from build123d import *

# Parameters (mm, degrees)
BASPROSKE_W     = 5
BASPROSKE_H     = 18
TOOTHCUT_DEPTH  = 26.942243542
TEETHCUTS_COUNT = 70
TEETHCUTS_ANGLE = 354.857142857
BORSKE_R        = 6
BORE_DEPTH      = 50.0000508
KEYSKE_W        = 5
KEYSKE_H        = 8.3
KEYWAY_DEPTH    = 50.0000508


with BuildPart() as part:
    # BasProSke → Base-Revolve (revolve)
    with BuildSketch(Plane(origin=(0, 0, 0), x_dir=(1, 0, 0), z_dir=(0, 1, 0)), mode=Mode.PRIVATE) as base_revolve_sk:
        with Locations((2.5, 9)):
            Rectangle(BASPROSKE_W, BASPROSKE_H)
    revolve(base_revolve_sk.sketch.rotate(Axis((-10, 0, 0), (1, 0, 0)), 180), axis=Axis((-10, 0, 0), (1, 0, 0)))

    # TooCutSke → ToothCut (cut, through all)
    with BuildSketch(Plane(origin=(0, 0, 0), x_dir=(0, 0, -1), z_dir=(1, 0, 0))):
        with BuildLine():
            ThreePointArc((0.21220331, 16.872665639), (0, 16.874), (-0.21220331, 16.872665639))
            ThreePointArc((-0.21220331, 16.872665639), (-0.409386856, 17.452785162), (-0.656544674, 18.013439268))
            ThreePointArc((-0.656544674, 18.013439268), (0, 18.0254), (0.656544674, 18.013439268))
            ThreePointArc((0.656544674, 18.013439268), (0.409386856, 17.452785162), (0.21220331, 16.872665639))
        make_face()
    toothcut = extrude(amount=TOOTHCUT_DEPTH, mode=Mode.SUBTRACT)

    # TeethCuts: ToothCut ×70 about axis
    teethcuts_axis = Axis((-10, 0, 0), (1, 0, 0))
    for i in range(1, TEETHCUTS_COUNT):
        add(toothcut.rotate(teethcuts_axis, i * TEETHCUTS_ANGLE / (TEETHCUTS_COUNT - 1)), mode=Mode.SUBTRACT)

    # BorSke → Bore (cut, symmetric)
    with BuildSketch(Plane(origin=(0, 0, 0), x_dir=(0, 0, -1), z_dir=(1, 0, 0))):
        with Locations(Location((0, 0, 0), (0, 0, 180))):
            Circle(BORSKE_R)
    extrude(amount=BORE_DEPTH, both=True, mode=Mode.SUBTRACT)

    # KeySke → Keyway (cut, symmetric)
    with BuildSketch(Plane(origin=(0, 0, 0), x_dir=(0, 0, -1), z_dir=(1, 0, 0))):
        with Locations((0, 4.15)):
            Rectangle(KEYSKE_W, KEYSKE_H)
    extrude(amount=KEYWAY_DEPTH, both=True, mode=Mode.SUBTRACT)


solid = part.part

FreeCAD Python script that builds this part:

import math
import FreeCAD as App
import Part
import Sketcher
from FreeCAD import Vector
Q = App.Units.Quantity

doc = App.newDocument("Part")
params = doc.addObject("Spreadsheet::Sheet", "Params")
for row, (alias, value) in enumerate([
    ("sketch1_width", "5 mm"),
    ("sketch1_height", "18 mm"),
    ("revolution_angle", "360 deg"),
    ("sketch2_radius", "7 mm"),
    ("sketch3_diameter", "12 mm"),
    ("pocket2_length", "100.000102 mm"),
    ("sketch4_height", "5 mm"),
    ("sketch4_width", "8.3 mm"),
    ("pocket3_length", "100.000102 mm"),
], start=1):
    params.set(f"A{row}", alias)
    params.set(f"B{row}", "=" + value)
    params.setAlias(f"B{row}", alias)

body = doc.addObject("PartDesign::Body", "Body")

sketch1 = body.newObject("Sketcher::SketchObject", "Sketch")
sketch1.AttachmentSupport = (doc.getObject("XZ_Plane"), [""])
sketch1.MapMode = "FlatFace"
sketch1.addGeometry([
    Part.LineSegment(Vector(0, -18, 0), Vector(0, 0, 0)),
    Part.LineSegment(Vector(0, 0, 0), Vector(5, 0, 0)),
    Part.LineSegment(Vector(5, 0, 0), Vector(5, -18, 0)),
    Part.LineSegment(Vector(5, -18, 0), Vector(0, -18, 0)),
], False)
sketch1.addConstraint([
    Sketcher.Constraint("Coincident", 0, 2, 1, 1),
    Sketcher.Constraint("Coincident", 1, 2, 2, 1),
    Sketcher.Constraint("Coincident", 2, 2, 3, 1),
    Sketcher.Constraint("Coincident", 3, 2, 0, 1),
    Sketcher.Constraint("Vertical", 0),
    Sketcher.Constraint("Horizontal", 1),
    Sketcher.Constraint("Vertical", 2),
    Sketcher.Constraint("Horizontal", 3),
    Sketcher.Constraint("Coincident", 0, 2, -1, 1),
    Sketcher.Constraint("DistanceX", 1, 1, 1, 2, Q("5 mm")),
    Sketcher.Constraint("DistanceY", 0, 1, 0, 2, Q("18 mm")),
])
sketch1.setExpression("Constraints[9]", "Params.sketch1_width")
sketch1.setExpression("Constraints[10]", "Params.sketch1_height")
revolution = body.newObject("PartDesign::Revolution", "Revolution")
revolution.Profile = sketch1
revolution.ReferenceAxis = (sketch1, ["H_Axis"])
revolution.setExpression("Angle", "Params.revolution_angle")

sketch2 = body.newObject("Sketcher::SketchObject", "Sketch001")
sketch2.AttachmentSupport = (doc.getObject("YZ_Plane"), [""])
sketch2.MapMode = "FlatFace"
sketch2.addGeometry([
    Part.ArcOfCircle(Part.Circle(Vector(0, 0, 0), Vector(0, 0, 1), 16.87), math.radians(-0.72), math.radians(0.72)),
    Part.ArcOfCircle(Part.Circle(Vector(14.91, -6.93, 0), Vector(0, 0, 1), 7), math.radians(63.7), math.radians(73.74)),
    Part.ArcOfCircle(Part.Circle(Vector(0, 0, 0), Vector(0, 0, 1), 18.03), math.radians(-2.09), math.radians(2.09)),
    Part.ArcOfCircle(Part.Circle(Vector(14.91, 6.93, 0), Vector(0, 0, 1), 7), math.radians(-73.74), math.radians(-63.7)),
], False)
sketch2.addConstraint([
    Sketcher.Constraint("Coincident", 0, 1, 1, 2),
    Sketcher.Constraint("Coincident", 1, 1, 2, 1),
    Sketcher.Constraint("Coincident", 2, 2, 3, 2),
    Sketcher.Constraint("Coincident", 3, 1, 0, 2),
    Sketcher.Constraint("Coincident", 0, 3, -1, 1),
    Sketcher.Constraint("Coincident", 2, 3, -1, 1),
    Sketcher.Constraint("Equal", 1, 3),
    Sketcher.Constraint("Symmetric", 1, 3, 3, 3, -1),
    Sketcher.Constraint("Radius", 1, Q("7 mm")),
    Sketcher.Constraint("Radius", 2, Q("18.0254 mm")),
    Sketcher.Constraint("Radius", 0, Q("16.874004 mm")),
    Sketcher.Constraint("DistanceX", -1, 1, 1, 3, Q("14.912149 mm")),
    Sketcher.Constraint("DistanceX", -1, 1, 1, 1, Q("18.013439 mm")),
])
sketch2.setExpression("Constraints[8]", "Params.sketch2_radius")
pocket1 = body.newObject("PartDesign::Pocket", "Pocket")
pocket1.Profile = sketch2
pocket1.Type = "ThroughAll"
pocket1.Reversed = True
doc.recompute()

polarpattern = body.newObject("PartDesign::PolarPattern", "PolarPattern")
polarpattern.Originals = [pocket1]
polarpattern.Axis = (doc.getObject("X_Axis"), [""])
polarpattern.Angle = 360
polarpattern.Occurrences = 70
body.Tip = polarpattern

sketch3 = body.newObject("Sketcher::SketchObject", "Sketch002")
sketch3.AttachmentSupport = (doc.getObject("YZ_Plane"), [""])
sketch3.MapMode = "FlatFace"
sketch3.addGeometry(Part.Circle(Vector(0, 0, 0), Vector(0, 0, 1), 6), False)
sketch3.addConstraint([
    Sketcher.Constraint("Coincident", 0, 3, -1, 1),
    Sketcher.Constraint("Diameter", 0, Q("12 mm")),
])
sketch3.setExpression("Constraints[1]", "Params.sketch3_diameter")
pocket2 = body.newObject("PartDesign::Pocket", "Pocket001")
pocket2.Profile = sketch3
pocket2.setExpression("Length", "Params.pocket2_length")
pocket2.Midplane = True

sketch4 = body.newObject("Sketcher::SketchObject", "Sketch003")
sketch4.AttachmentSupport = (doc.getObject("YZ_Plane"), [""])
sketch4.MapMode = "FlatFace"
sketch4.addGeometry([
    Part.LineSegment(Vector(8, 2, 0), Vector(0, 2, 0)),
    Part.LineSegment(Vector(0, 2, 0), Vector(0, -2, 0)),
    Part.LineSegment(Vector(0, -2, 0), Vector(8, -2, 0)),
    Part.LineSegment(Vector(8, -2, 0), Vector(8, 2, 0)),
], False)
sketch4.addConstraint([
    Sketcher.Constraint("Coincident", 0, 2, 1, 1),
    Sketcher.Constraint("Coincident", 1, 2, 2, 1),
    Sketcher.Constraint("Coincident", 2, 2, 3, 1),
    Sketcher.Constraint("Coincident", 3, 2, 0, 1),
    Sketcher.Constraint("Horizontal", 0),
    Sketcher.Constraint("Vertical", 1),
    Sketcher.Constraint("Horizontal", 2),
    Sketcher.Constraint("Vertical", 3),
    Sketcher.Constraint("Symmetric", 0, 2, 1, 2, -1, 1),
    Sketcher.Constraint("DistanceY", 1, 2, 1, 1, Q("5 mm")),
    Sketcher.Constraint("DistanceX", 0, 2, 0, 1, Q("8.3 mm")),
])
sketch4.setExpression("Constraints[9]", "Params.sketch4_height")
sketch4.setExpression("Constraints[10]", "Params.sketch4_width")
pocket3 = body.newObject("PartDesign::Pocket", "Pocket002")
pocket3.Profile = sketch4
pocket3.setExpression("Length", "Params.pocket3_length")
pocket3.Midplane = True

doc.recompute()
